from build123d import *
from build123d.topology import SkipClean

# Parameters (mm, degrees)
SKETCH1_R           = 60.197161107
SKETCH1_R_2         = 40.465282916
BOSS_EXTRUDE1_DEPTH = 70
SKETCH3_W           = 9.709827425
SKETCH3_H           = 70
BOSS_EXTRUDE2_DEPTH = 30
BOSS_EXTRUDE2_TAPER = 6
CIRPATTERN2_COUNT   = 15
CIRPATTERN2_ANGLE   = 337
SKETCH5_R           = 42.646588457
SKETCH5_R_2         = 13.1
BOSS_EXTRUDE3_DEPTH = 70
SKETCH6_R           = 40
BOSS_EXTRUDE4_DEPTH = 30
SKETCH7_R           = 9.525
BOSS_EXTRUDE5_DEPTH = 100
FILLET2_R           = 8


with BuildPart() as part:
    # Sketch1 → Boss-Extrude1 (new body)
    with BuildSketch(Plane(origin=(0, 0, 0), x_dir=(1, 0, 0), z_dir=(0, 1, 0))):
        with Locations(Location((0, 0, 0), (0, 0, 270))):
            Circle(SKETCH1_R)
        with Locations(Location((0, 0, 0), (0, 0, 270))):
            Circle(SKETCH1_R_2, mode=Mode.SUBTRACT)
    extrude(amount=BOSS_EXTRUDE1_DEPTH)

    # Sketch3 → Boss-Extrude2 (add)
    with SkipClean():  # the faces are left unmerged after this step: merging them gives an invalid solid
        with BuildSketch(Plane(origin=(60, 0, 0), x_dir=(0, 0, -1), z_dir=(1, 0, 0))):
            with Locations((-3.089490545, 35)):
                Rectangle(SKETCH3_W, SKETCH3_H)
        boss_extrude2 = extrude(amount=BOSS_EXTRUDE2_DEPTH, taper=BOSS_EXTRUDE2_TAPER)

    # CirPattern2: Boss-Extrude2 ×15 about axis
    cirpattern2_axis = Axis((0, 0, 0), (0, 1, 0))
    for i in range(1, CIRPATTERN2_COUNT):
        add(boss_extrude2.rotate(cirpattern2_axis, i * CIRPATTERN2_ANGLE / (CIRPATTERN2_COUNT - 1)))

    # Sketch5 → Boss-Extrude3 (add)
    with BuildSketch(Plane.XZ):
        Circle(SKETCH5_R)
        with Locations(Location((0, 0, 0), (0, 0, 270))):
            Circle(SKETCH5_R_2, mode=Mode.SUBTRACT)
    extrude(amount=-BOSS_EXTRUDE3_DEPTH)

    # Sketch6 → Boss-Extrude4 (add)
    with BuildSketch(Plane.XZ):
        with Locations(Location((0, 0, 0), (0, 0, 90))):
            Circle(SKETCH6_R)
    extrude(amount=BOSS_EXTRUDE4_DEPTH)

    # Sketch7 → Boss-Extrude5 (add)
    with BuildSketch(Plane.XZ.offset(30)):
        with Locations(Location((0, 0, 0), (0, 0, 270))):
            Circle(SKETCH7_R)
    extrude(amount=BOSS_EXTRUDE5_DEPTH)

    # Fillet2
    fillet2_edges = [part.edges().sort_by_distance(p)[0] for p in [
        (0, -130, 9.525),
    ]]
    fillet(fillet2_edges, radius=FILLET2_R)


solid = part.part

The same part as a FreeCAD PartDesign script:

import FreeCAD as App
import Part
import Sketcher
Q = App.Units.Quantity


def edges_at(feature, points):
    """Names of the edges that pass closest to the given points."""
    edges = feature.Shape.Edges
    near = lambda p: min(range(len(edges)), key=lambda i: edges[i].distToShape(Part.Vertex(*p))[0])
    return sorted({f"Edge{near(p) + 1}" for p in points})


def add_polygon(sketch, points):
    """Adds a closed chain of lines whose ends are joined by coincident constraints."""
    first, n = sketch.GeometryCount, len(points)
    for a, b in zip(points, points[1:] + points[:1]):
        sketch.addGeometry(Part.LineSegment(App.Vector(*a, 0), App.Vector(*b, 0)), False)
    for i in range(n):
        sketch.addConstraint(Sketcher.Constraint("Coincident", first + i, 2, first + (i + 1) % n, 1))

doc = App.newDocument("Part")
body = doc.addObject("PartDesign::Body", "Body")

sketch1 = body.newObject("Sketcher::SketchObject", "Sketch")
sketch1.AttachmentSupport = (doc.getObject("XZ_Plane"), [""])
sketch1.MapMode = "FlatFace"
sketch1.addGeometry([
    Part.Circle(App.Vector(0, 0, 0), App.Vector(0, 0, 1), 60.197161),
    Part.Circle(App.Vector(0, 0, 0), App.Vector(0, 0, 1), 40.465283),
], False)
sketch1.addConstraint([
    Sketcher.Constraint("Coincident", 0, 3, -1, 1),
    Sketcher.Constraint("Coincident", 1, 3, -1, 1),
    Sketcher.Constraint("Diameter", 0, Q("120.394322 mm")),
    Sketcher.Constraint("Diameter", 1, Q("80.930566 mm")),
])
pad1 = body.newObject("PartDesign::Pad", "Pad")
pad1.Profile = sketch1
pad1.Length = 70
pad1.Reversed = True

sketch2 = body.newObject("Sketcher::SketchObject", "Sketch001")
sketch2.AttachmentSupport = (doc.getObject("YZ_Plane"), [""])
sketch2.MapMode = "FlatFace"
sketch2.AttachmentOffset = App.Placement(App.Vector(0, 0, 60), App.Rotation())
add_polygon(sketch2, [(70, 7.944404), (0, 7.944404), (0, -1.765423), (70, -1.765423)])
sketch2.addConstraint([
    Sketcher.Constraint("Horizontal", 0),
    Sketcher.Constraint("Vertical", 1),
    Sketcher.Constraint("Horizontal", 2),
    Sketcher.Constraint("Vertical", 3),
    Sketcher.Constraint("PointOnObject", 0, 2, -2),
    Sketcher.Constraint("DistanceX", 0, 2, 0, 1, Q("70 mm")),
    Sketcher.Constraint("DistanceY", 1, 2, 1, 1, Q("9.709827 mm")),
    Sketcher.Constraint("DistanceY", -1, 1, 0, 2, Q("7.944404 mm")),
])
pad2 = body.newObject("PartDesign::Pad", "Pad001")
pad2.Profile = sketch2
pad2.Length = 30
pad2.TaperAngle = -6
doc.recompute()

polarpattern = body.newObject("PartDesign::PolarPattern", "PolarPattern")
polarpattern.Originals = [pad2]
polarpattern.Axis = (doc.getObject("Y_Axis"), [""])
polarpattern.Angle = 337
polarpattern.Occurrences = 15
body.Tip = polarpattern

sketch3 = body.newObject("Sketcher::SketchObject", "Sketch002")
sketch3.AttachmentSupport = (doc.getObject("XZ_Plane"), [""])
sketch3.MapMode = "FlatFace"
sketch3.addGeometry([
    Part.Circle(App.Vector(0, 0, 0), App.Vector(0, 0, 1), 42.646588),
    Part.Circle(App.Vector(0, 0, 0), App.Vector(0, 0, 1), 13.1),
], False)
sketch3.addConstraint([
    Sketcher.Constraint("Coincident", 0, 3, -1, 1),
    Sketcher.Constraint("Coincident", 1, 3, -1, 1),
    Sketcher.Constraint("Diameter", 1, Q("26.2 mm")),
    Sketcher.Constraint("Diameter", 0, Q("85.293177 mm")),
])
pad3 = body.newObject("PartDesign::Pad", "Pad002")
pad3.Profile = sketch3
pad3.Length = 70
pad3.Reversed = True

sketch4 = body.newObject("Sketcher::SketchObject", "Sketch003")
sketch4.AttachmentSupport = (doc.getObject("XZ_Plane"), [""])
sketch4.MapMode = "FlatFace"
sketch4.addGeometry(Part.Circle(App.Vector(0, 0, 0), App.Vector(0, 0, 1), 40), False)
sketch4.addConstraint([
    Sketcher.Constraint("Coincident", 0, 3, -1, 1),
    Sketcher.Constraint("Diameter", 0, Q("80 mm")),
])
pad4 = body.newObject("PartDesign::Pad", "Pad003")
pad4.Profile = sketch4
pad4.Length = 30

sketch5 = body.newObject("Sketcher::SketchObject", "Sketch004")
sketch5.AttachmentSupport = (doc.getObject("XZ_Plane"), [""])
sketch5.MapMode = "FlatFace"
sketch5.AttachmentOffset = App.Placement(App.Vector(0, 0, 30), App.Rotation())
sketch5.addGeometry(Part.Circle(App.Vector(0, 0, 0), App.Vector(0, 0, 1), 9.525), False)
sketch5.addConstraint([
    Sketcher.Constraint("Coincident", 0, 3, -1, 1),
    Sketcher.Constraint("Diameter", 0, Q("19.05 mm")),
])
pad5 = body.newObject("PartDesign::Pad", "Pad004")
pad5.Profile = sketch5
pad5.Length = 100
doc.recompute()

fillet = body.newObject("PartDesign::Fillet", "Fillet")
fillet.Base = (pad5, edges_at(pad5, [(0, -130, 9.525)]))
fillet.Radius = 8

doc.recompute()
